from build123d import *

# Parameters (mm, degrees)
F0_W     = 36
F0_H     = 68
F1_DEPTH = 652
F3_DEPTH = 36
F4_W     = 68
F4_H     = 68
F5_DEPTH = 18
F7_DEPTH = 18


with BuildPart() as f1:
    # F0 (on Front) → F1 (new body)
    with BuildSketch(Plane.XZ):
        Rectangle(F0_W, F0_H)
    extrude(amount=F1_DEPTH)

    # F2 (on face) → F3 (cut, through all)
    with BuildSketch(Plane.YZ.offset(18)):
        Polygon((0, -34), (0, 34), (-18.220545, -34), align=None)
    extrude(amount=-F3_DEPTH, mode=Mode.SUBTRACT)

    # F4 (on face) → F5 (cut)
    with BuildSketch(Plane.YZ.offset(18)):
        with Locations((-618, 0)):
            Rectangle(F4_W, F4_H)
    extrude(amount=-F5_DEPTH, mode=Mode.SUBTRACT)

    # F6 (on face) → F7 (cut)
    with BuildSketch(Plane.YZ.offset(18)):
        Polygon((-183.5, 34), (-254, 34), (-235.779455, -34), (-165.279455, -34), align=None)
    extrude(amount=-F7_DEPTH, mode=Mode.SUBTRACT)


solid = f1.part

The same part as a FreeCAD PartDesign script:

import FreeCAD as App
import Part
import Sketcher
from FreeCAD import Vector
Q = App.Units.Quantity

doc = App.newDocument("Part")
body = doc.addObject("PartDesign::Body", "Body")

# Sketch on XZ plane
sketch1 = body.newObject("Sketcher::SketchObject", "Sketch")
sketch1.AttachmentSupport = (doc.getObject("XZ_Plane"), [""])
sketch1.MapMode = "FlatFace"
sketch1.addGeometry(Part.LineSegment(Vector(-18, 34, 0), Vector(-18, -34, 0)), False)
sketch1.addGeometry(Part.LineSegment(Vector(-18, -34, 0), Vector(18, -34, 0)), False)
sketch1.addGeometry(Part.LineSegment(Vector(18, -34, 0), Vector(18, 34, 0)), False)
sketch1.addGeometry(Part.LineSegment(Vector(18, 34, 0), Vector(-18, 34, 0)), False)
sketch1.addConstraint(Sketcher.Constraint("Coincident", 0, 2, 1, 1))
sketch1.addConstraint(Sketcher.Constraint("Coincident", 1, 2, 2, 1))
sketch1.addConstraint(Sketcher.Constraint("Coincident", 2, 2, 3, 1))
sketch1.addConstraint(Sketcher.Constraint("Coincident", 3, 2, 0, 1))
sketch1.addConstraint(Sketcher.Constraint("Vertical", 0))
sketch1.addConstraint(Sketcher.Constraint("Horizontal", 1))
sketch1.addConstraint(Sketcher.Constraint("Vertical", 2))
sketch1.addConstraint(Sketcher.Constraint("Horizontal", 3))
sketch1.addConstraint(Sketcher.Constraint("Symmetric", 0, 2, 2, 2, -1, 1))
sketch1.addConstraint(Sketcher.Constraint("DistanceX", 1, 1, 1, 2, Q("36 mm")))
sketch1.addConstraint(Sketcher.Constraint("DistanceY", 0, 2, 0, 1, Q("68 mm")))
pad1 = body.newObject("PartDesign::Pad", "Pad")
pad1.Profile = sketch1
pad1.Length = 652

# Sketch on YZ plane
sketch2 = body.newObject("Sketcher::SketchObject", "Sketch001")
sketch2.AttachmentSupport = (doc.getObject("YZ_Plane"), [""])
sketch2.MapMode = "FlatFace"
sketch2.AttachmentOffset = App.Placement(Vector(0, 0, 18), App.Rotation())
sketch2.addGeometry(Part.LineSegment(Vector(0, -34, 0), Vector(0, 34, 0)), False)
sketch2.addGeometry(Part.LineSegment(Vector(0, 34, 0), Vector(-18, -34, 0)), False)
sketch2.addGeometry(Part.LineSegment(Vector(-18, -34, 0), Vector(0, -34, 0)), False)
sketch2.addConstraint(Sketcher.Constraint("Coincident", 0, 2, 1, 1))
sketch2.addConstraint(Sketcher.Constraint("Coincident", 1, 2, 2, 1))
sketch2.addConstraint(Sketcher.Constraint("Coincident", 2, 2, 0, 1))
sketch2.addConstraint(Sketcher.Constraint("Vertical", 0))
sketch2.addConstraint(Sketcher.Constraint("Horizontal", 2))
sketch2.addConstraint(Sketcher.Constraint("Symmetric", 0, 2, 2, 2, -1, 1))
sketch2.addConstraint(Sketcher.Constraint("DistanceY", 0, 1, 0, 2, Q("68 mm")))
sketch2.addConstraint(Sketcher.Constraint("Angle", 1, Q("-105 deg")))
pocket1 = body.newObject("PartDesign::Pocket", "Pocket")
pocket1.Profile = sketch2
pocket1.Type = "ThroughAll"

# Sketch on YZ plane
sketch3 = body.newObject("Sketcher::SketchObject", "Sketch002")
sketch3.AttachmentSupport = (doc.getObject("YZ_Plane"), [""])
sketch3.MapMode = "FlatFace"
sketch3.AttachmentOffset = App.Placement(Vector(0, 0, 18), App.Rotation())
sketch3.addGeometry(Part.LineSegment(Vector(-652, 34, 0), Vector(-652, -34, 0)), False)
sketch3.addGeometry(Part.LineSegment(Vector(-652, -34, 0), Vector(-584, -34, 0)), False)
sketch3.addGeometry(Part.LineSegment(Vector(-584, -34, 0), Vector(-584, 34, 0)), False)
sketch3.addGeometry(Part.LineSegment(Vector(-584, 34, 0), Vector(-652, 34, 0)), False)
sketch3.addConstraint(Sketcher.Constraint("Coincident", 0, 2, 1, 1))
sketch3.addConstraint(Sketcher.Constraint("Coincident", 1, 2, 2, 1))
sketch3.addConstraint(Sketcher.Constraint("Coincident", 2, 2, 3, 1))
sketch3.addConstraint(Sketcher.Constraint("Coincident", 3, 2, 0, 1))
sketch3.addConstraint(Sketcher.Constraint("Vertical", 0))
sketch3.addConstraint(Sketcher.Constraint("Horizontal", 1))
sketch3.addConstraint(Sketcher.Constraint("Vertical", 2))
sketch3.addConstraint(Sketcher.Constraint("Horizontal", 3))
sketch3.addConstraint(Sketcher.Constraint("Equal", 3, 0))
sketch3.addConstraint(Sketcher.Constraint("DistanceX", 1, 1, 1, 2, Q("68 mm")))
sketch3.addConstraint(Sketcher.Constraint("DistanceX", 0, 2, -1, 1, Q("652 mm")))
sketch3.addConstraint(Sketcher.Constraint("DistanceY", 0, 2, -1, 1, Q("34 mm")))
pocket2 = body.newObject("PartDesign::Pocket", "Pocket001")
pocket2.Profile = sketch3
pocket2.Length = 18

# Sketch on YZ plane
sketch4 = body.newObject("Sketcher::SketchObject", "Sketch003")
sketch4.AttachmentSupport = (doc.getObject("YZ_Plane"), [""])
sketch4.MapMode = "FlatFace"
sketch4.AttachmentOffset = App.Placement(Vector(0, 0, 18), App.Rotation())
sketch4.addGeometry(Part.LineSegment(Vector(-184, 34, 0), Vector(-254, 34, 0)), False)
sketch4.addGeometry(Part.LineSegment(Vector(-254, 34, 0), Vector(-236, -34, 0)), False)
sketch4.addGeometry(Part.LineSegment(Vector(-236, -34, 0), Vector(-165, -34, 0)), False)
sketch4.addGeometry(Part.LineSegment(Vector(-165, -34, 0), Vector(-184, 34, 0)), False)
sketch4.addConstraint(Sketcher.Constraint("Coincident", 0, 2, 1, 1))
sketch4.addConstraint(Sketcher.Constraint("Coincident", 1, 2, 2, 1))
sketch4.addConstraint(Sketcher.Constraint("Coincident", 2, 2, 3, 1))
sketch4.addConstraint(Sketcher.Constraint("Coincident", 3, 2, 0, 1))
sketch4.addConstraint(Sketcher.Constraint("Horizontal", 0))
sketch4.addConstraint(Sketcher.Constraint("Horizontal", 2))
sketch4.addConstraint(Sketcher.Constraint("Parallel", 1, 3))
sketch4.addConstraint(Sketcher.Constraint("Angle", 1, Q("-75 deg")))
sketch4.addConstraint(Sketcher.Constraint("DistanceX", 0, 2, 0, 1, Q("70.5 mm")))
sketch4.addConstraint(Sketcher.Constraint("DistanceX", 0, 2, -1, 1, Q("254 mm")))
sketch4.addConstraint(Sketcher.Constraint("DistanceY", -1, 1, 0, 2, Q("34 mm")))
sketch4.addConstraint(Sketcher.Constraint("DistanceY", 1, 2, -1, 1, Q("34 mm")))
pocket3 = body.newObject("PartDesign::Pocket", "Pocket002")
pocket3.Profile = sketch4
pocket3.Length = 18

doc.recompute()
